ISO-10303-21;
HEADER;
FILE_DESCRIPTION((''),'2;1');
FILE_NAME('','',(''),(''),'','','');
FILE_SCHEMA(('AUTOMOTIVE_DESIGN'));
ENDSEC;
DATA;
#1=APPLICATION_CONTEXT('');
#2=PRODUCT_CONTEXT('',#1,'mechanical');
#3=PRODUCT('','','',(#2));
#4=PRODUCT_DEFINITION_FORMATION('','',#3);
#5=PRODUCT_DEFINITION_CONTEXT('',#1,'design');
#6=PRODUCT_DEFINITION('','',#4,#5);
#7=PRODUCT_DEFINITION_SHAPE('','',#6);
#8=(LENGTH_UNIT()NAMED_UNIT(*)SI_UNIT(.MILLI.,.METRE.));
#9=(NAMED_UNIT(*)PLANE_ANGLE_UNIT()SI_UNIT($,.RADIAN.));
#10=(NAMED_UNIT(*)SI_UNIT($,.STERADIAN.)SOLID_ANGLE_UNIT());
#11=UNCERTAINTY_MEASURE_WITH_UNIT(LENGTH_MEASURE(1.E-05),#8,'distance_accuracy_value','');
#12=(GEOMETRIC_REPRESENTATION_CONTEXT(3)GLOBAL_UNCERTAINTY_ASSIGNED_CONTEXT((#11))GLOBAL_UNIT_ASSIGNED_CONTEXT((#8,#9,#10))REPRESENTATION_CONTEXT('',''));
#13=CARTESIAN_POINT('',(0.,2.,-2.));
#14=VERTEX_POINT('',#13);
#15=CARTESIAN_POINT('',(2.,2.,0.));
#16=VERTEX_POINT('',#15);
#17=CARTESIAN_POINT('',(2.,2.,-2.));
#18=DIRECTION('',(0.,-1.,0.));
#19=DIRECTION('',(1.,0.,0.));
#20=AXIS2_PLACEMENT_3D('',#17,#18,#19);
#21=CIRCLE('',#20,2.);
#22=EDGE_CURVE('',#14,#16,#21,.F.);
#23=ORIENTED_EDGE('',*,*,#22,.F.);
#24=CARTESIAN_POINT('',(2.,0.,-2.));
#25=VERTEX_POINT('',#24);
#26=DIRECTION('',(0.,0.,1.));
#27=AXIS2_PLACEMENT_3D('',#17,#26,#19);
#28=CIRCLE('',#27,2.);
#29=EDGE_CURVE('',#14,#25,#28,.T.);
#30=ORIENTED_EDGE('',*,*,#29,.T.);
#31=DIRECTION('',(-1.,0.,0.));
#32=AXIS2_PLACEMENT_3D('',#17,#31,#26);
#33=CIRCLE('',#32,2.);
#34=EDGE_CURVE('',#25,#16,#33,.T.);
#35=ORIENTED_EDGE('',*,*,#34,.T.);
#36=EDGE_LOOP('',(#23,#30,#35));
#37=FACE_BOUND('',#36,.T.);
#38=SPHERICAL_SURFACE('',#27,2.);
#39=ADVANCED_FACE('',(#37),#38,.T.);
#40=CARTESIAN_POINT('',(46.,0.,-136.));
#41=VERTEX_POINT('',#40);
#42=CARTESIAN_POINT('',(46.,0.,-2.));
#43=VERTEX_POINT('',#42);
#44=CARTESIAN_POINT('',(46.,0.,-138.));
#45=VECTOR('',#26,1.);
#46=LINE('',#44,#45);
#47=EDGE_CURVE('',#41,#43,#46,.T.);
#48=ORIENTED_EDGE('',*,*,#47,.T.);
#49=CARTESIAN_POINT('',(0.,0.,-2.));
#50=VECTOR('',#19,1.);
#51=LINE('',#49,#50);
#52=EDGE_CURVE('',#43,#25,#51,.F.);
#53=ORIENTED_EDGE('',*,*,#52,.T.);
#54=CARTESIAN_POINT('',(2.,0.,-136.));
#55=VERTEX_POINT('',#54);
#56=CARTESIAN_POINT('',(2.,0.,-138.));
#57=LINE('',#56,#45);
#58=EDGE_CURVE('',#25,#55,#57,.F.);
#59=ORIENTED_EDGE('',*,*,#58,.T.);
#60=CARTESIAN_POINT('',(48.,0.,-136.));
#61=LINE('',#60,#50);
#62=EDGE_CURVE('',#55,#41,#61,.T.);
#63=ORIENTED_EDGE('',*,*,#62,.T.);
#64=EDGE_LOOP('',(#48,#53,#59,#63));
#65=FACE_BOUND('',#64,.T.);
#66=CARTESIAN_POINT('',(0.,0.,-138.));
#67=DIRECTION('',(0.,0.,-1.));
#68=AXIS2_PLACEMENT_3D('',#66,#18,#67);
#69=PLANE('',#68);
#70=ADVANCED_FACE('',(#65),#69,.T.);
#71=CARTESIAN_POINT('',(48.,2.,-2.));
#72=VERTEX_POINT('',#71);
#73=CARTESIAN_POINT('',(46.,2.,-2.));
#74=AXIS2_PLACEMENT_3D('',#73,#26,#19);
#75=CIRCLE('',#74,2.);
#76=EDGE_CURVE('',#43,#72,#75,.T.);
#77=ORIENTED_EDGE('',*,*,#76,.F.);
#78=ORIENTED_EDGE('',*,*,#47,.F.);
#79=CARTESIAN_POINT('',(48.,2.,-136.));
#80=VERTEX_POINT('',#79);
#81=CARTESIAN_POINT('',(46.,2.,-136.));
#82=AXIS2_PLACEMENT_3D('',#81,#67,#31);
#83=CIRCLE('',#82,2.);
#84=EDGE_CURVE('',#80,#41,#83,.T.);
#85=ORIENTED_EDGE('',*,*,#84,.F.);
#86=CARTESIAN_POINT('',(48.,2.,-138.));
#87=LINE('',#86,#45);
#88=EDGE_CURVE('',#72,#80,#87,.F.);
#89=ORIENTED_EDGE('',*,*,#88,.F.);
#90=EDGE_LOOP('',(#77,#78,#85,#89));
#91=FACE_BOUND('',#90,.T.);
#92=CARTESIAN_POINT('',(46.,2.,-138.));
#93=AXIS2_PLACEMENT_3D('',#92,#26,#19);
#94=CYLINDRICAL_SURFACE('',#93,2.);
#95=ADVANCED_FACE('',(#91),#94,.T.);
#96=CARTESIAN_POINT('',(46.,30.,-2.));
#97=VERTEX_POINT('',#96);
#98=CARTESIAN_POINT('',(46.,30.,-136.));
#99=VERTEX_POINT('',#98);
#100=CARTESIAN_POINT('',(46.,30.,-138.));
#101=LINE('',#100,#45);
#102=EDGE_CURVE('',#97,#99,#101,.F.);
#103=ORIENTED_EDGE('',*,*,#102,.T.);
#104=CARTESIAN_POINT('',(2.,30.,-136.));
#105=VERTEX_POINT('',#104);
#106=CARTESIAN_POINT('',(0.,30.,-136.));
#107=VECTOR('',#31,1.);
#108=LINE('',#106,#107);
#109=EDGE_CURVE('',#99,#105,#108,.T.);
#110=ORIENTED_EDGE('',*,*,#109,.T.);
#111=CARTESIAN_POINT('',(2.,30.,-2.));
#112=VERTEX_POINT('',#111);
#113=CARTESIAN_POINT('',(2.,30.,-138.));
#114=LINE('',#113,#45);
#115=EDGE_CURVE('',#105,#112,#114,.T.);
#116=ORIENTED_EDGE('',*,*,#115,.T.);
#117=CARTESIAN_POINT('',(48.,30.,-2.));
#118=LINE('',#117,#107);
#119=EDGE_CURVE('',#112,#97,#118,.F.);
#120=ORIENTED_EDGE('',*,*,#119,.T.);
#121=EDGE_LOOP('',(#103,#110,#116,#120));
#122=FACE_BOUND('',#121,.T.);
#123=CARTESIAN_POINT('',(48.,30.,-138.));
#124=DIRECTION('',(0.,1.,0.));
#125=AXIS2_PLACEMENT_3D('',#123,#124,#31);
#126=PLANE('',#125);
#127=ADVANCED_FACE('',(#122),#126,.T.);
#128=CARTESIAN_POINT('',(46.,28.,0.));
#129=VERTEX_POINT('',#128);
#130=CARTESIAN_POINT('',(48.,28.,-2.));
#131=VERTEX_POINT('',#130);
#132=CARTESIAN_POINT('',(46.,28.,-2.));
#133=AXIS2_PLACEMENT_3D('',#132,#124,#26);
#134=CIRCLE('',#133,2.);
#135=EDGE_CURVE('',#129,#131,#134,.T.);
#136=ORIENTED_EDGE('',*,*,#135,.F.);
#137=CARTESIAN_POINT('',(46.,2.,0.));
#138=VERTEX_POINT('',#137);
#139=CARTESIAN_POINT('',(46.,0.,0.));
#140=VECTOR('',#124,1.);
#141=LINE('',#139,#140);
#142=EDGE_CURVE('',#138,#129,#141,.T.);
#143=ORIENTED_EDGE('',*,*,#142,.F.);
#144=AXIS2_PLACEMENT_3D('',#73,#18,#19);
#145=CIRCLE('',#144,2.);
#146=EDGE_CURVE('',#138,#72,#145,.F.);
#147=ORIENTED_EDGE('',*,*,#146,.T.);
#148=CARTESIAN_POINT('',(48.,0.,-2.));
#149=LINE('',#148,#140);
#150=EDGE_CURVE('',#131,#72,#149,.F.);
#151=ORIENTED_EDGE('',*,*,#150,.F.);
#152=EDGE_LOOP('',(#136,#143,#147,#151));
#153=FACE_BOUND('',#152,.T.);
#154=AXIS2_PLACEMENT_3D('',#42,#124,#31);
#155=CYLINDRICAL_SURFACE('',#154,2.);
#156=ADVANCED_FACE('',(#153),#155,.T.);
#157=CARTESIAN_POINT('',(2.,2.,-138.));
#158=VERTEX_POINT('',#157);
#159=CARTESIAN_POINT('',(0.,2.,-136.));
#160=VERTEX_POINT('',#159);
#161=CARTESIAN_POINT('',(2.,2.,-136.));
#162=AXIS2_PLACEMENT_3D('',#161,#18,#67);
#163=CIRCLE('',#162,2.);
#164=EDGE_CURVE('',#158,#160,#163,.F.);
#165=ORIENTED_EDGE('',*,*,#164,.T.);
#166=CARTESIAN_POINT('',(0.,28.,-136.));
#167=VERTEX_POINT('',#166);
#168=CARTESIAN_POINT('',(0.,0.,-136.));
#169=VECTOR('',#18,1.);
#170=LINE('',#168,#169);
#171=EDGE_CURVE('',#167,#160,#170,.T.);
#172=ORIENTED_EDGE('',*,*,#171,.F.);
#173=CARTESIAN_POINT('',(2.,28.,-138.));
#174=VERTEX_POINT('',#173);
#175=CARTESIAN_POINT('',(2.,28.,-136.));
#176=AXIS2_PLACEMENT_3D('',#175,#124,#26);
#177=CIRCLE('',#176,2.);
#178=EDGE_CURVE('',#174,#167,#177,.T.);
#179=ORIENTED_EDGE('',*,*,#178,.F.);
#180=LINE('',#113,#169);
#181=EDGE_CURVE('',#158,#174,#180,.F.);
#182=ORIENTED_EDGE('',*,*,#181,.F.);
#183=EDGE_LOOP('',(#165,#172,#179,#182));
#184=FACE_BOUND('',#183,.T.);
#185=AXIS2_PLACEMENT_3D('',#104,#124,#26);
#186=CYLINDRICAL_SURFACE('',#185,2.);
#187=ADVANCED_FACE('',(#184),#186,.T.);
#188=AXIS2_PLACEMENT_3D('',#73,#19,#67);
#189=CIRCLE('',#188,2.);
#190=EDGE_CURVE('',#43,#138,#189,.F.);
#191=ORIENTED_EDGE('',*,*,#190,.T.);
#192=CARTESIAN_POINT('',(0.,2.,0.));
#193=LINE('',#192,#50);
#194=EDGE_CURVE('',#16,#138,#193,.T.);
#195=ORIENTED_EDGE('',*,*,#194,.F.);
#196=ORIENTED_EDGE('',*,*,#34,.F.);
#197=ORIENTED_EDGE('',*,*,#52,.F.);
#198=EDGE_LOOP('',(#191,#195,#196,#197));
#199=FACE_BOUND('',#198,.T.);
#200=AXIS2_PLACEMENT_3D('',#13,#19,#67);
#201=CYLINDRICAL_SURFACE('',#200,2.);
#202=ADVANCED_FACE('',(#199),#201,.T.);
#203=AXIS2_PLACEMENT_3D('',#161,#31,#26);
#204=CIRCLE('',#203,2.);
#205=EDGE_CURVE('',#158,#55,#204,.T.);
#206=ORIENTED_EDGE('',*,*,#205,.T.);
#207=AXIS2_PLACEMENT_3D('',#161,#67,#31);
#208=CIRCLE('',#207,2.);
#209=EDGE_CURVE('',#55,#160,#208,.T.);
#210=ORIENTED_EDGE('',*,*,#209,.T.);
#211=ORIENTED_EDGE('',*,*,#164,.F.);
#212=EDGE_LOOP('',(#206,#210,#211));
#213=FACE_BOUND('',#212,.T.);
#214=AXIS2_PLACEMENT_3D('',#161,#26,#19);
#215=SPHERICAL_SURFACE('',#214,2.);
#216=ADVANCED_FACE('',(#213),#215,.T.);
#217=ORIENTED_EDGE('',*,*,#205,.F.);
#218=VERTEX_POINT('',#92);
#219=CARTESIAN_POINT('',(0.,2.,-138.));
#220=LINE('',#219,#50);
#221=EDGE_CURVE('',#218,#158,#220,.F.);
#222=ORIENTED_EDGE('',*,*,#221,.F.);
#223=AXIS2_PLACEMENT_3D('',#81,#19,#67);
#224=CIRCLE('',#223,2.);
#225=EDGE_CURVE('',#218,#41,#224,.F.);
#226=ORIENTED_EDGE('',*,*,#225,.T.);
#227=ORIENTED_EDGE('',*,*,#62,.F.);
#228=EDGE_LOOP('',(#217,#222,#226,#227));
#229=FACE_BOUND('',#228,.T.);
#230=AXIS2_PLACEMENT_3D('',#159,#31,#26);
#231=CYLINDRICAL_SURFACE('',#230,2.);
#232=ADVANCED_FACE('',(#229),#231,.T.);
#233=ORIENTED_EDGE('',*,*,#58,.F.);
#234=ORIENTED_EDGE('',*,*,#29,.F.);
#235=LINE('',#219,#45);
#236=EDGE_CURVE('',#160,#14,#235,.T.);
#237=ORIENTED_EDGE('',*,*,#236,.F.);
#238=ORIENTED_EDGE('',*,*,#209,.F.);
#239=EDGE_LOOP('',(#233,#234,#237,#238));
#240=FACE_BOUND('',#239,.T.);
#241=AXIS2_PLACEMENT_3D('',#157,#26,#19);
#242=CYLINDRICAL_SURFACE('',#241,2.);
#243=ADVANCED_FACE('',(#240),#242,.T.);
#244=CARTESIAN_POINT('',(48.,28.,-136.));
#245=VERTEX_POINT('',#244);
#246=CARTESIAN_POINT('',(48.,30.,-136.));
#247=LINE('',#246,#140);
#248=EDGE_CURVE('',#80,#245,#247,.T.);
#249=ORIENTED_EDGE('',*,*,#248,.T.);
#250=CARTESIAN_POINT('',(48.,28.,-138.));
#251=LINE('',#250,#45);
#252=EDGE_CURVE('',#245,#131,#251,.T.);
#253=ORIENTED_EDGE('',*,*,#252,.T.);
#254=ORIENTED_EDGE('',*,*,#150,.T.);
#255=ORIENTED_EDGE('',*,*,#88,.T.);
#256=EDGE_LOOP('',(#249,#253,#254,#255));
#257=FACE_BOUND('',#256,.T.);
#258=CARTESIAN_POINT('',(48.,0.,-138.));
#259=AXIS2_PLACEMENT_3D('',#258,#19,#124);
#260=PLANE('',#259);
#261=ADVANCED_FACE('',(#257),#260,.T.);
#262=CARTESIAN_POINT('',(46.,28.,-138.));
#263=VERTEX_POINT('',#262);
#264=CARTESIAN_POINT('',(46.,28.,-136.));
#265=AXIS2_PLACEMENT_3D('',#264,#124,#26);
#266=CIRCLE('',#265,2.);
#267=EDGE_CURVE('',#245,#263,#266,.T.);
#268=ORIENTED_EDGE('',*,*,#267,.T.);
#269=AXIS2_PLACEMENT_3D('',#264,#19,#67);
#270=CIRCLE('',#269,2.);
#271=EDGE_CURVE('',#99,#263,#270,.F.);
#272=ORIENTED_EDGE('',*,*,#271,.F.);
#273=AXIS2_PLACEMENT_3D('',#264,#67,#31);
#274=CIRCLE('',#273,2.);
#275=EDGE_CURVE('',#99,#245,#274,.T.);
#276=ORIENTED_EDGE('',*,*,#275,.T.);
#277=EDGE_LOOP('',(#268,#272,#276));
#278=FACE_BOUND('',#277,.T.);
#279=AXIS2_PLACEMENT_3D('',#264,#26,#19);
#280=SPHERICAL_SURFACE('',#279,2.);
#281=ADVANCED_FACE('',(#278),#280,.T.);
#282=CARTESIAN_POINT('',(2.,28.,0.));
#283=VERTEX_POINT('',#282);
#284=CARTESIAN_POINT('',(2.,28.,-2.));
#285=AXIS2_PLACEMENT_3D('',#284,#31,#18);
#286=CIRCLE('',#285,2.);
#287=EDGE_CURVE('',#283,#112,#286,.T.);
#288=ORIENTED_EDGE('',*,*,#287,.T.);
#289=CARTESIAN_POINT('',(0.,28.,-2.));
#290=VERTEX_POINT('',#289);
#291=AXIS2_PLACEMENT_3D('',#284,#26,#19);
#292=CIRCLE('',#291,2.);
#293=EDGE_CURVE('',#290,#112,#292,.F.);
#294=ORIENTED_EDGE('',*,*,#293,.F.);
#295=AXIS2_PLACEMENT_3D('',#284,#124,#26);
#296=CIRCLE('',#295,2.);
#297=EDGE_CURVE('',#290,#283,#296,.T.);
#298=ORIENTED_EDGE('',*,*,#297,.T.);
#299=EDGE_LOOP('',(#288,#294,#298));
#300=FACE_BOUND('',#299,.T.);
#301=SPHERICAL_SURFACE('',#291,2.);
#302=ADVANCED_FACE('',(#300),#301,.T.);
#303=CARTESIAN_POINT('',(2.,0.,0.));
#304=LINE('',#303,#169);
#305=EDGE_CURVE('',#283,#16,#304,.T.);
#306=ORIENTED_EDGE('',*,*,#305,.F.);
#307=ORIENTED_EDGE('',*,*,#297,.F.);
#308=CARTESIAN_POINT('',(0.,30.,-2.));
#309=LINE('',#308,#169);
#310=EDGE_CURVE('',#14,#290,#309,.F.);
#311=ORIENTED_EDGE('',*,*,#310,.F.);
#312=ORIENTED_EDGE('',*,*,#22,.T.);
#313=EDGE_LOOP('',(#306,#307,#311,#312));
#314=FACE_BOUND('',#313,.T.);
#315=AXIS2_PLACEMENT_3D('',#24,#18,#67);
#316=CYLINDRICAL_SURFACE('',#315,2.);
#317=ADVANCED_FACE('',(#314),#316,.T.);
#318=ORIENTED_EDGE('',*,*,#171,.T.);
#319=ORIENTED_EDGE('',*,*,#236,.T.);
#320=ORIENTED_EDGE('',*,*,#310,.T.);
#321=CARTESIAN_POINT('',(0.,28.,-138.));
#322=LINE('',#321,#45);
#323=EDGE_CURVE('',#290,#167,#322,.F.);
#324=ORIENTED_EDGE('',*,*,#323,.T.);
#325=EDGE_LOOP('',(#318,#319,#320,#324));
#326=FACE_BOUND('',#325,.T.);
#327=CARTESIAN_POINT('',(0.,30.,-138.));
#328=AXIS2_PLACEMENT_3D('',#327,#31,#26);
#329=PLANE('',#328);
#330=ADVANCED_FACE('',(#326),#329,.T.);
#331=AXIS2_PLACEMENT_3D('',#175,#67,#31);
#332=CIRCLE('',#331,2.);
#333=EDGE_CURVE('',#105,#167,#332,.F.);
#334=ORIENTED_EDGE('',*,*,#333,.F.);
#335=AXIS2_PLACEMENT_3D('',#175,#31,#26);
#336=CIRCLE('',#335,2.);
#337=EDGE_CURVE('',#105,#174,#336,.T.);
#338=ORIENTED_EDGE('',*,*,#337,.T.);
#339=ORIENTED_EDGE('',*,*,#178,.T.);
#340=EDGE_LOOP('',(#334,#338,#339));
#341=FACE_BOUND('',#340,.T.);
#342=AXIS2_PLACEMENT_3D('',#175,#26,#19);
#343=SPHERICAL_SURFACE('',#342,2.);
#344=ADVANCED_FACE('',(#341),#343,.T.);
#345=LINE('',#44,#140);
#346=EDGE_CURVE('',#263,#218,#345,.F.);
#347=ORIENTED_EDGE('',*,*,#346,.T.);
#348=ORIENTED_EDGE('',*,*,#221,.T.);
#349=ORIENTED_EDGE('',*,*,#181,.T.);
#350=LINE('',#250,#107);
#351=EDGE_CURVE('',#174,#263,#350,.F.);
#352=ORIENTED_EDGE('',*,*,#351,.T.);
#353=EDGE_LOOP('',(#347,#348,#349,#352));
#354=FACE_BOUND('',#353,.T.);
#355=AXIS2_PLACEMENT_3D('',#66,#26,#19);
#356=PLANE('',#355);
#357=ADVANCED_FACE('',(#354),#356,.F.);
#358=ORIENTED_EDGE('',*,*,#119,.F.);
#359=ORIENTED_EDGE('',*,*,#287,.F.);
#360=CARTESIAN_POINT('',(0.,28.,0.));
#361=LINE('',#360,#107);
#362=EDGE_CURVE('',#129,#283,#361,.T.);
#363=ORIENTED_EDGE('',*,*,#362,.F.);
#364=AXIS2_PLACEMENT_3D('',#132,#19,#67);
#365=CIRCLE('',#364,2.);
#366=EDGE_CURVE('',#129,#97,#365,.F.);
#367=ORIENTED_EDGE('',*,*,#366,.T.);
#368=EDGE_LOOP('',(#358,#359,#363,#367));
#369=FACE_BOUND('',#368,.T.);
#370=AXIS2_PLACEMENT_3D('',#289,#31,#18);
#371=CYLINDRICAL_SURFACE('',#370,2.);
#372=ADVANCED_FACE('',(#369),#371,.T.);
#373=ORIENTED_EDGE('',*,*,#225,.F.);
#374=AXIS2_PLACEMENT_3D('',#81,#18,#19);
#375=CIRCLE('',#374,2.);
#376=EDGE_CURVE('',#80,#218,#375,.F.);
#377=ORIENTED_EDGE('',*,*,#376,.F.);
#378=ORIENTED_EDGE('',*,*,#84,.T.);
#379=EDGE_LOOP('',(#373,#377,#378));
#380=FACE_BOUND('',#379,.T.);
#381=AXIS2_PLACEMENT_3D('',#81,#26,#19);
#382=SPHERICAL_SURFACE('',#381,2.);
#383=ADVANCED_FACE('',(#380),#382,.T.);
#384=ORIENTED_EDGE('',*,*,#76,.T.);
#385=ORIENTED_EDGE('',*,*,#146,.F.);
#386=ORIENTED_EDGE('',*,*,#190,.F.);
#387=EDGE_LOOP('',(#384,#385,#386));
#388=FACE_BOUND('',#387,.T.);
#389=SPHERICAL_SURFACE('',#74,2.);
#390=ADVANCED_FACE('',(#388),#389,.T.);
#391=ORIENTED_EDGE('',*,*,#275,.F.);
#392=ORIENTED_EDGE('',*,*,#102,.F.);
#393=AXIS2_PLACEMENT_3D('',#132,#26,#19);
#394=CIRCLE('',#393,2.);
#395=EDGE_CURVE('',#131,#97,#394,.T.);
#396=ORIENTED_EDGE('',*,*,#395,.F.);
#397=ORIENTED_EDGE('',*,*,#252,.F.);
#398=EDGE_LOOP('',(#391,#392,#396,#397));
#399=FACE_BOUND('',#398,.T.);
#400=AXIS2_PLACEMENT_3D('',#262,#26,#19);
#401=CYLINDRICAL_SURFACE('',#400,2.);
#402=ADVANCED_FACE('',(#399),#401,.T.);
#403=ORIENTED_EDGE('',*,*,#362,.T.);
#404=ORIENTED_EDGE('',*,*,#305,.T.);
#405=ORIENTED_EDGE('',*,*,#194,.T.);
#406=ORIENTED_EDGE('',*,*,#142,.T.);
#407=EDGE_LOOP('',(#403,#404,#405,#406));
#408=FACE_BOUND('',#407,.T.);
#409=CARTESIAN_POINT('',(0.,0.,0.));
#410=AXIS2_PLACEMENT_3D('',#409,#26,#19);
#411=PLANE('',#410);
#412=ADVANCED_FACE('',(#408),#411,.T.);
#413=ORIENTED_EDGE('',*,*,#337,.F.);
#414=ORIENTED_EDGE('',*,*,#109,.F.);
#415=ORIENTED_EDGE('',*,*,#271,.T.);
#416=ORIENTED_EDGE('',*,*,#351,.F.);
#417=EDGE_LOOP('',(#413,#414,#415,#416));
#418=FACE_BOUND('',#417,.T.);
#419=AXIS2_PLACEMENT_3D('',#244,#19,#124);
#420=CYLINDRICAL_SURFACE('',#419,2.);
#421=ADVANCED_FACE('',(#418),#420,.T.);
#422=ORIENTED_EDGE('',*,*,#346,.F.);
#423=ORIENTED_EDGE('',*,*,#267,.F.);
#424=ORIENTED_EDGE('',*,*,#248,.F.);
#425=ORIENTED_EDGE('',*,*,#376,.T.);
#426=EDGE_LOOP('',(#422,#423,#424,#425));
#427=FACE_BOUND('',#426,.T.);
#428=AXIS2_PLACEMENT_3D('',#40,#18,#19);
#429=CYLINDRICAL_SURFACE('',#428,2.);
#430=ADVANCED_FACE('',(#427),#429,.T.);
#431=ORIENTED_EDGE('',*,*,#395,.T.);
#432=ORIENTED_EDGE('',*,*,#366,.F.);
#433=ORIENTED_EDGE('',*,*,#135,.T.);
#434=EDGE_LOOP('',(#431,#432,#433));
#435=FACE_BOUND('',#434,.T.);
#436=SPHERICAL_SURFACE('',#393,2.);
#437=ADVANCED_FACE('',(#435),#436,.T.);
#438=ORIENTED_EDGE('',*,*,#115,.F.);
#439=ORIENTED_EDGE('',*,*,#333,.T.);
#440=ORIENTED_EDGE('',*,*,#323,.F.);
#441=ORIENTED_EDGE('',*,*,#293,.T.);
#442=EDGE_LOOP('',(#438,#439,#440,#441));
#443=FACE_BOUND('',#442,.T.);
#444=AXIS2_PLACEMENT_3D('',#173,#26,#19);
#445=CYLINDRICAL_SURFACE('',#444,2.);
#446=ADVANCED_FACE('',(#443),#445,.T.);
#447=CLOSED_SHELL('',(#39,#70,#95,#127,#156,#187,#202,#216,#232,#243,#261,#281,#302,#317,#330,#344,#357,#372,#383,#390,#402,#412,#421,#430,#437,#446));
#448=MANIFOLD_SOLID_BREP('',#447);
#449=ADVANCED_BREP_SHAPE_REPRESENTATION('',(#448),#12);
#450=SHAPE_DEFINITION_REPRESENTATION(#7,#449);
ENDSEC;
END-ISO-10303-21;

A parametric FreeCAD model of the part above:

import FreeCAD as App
import Part
import Sketcher
Q = App.Units.Quantity

doc = App.newDocument("Part")
body = doc.addObject("PartDesign::Body", "Body")

sketch1 = body.newObject("Sketcher::SketchObject", "Sketch")
sketch1.AttachmentSupport = (doc.getObject("XY_Plane"), [""])
sketch1.MapMode = "FlatFace"
sketch1.addGeometry(Part.LineSegment(App.Vector(0, 30, 0), App.Vector(0, 0, 0)), False)
sketch1.addGeometry(Part.LineSegment(App.Vector(0, 0, 0), App.Vector(48, 0, 0)), False)
sketch1.addGeometry(Part.LineSegment(App.Vector(48, 0, 0), App.Vector(48, 30, 0)), False)
sketch1.addGeometry(Part.LineSegment(App.Vector(48, 30, 0), App.Vector(0, 30, 0)), False)
sketch1.addConstraint(Sketcher.Constraint("Coincident", 0, 2, 1, 1))
sketch1.addConstraint(Sketcher.Constraint("Coincident", 1, 2, 2, 1))
sketch1.addConstraint(Sketcher.Constraint("Coincident", 2, 2, 3, 1))
sketch1.addConstraint(Sketcher.Constraint("Coincident", 3, 2, 0, 1))
sketch1.addConstraint(Sketcher.Constraint("Vertical", 0))
sketch1.addConstraint(Sketcher.Constraint("Horizontal", 1))
sketch1.addConstraint(Sketcher.Constraint("Vertical", 2))
sketch1.addConstraint(Sketcher.Constraint("Horizontal", 3))
sketch1.addConstraint(Sketcher.Constraint("Coincident", 0, 2, -1, 1))
sketch1.addConstraint(Sketcher.Constraint("DistanceX", 1, 1, 1, 2, Q("48 mm")))
sketch1.addConstraint(Sketcher.Constraint("DistanceY", 0, 2, 0, 1, Q("30 mm")))
pad1 = body.newObject("PartDesign::Pad", "Pad")
pad1.Profile = sketch1
pad1.Length = 138
pad1.Reversed = True
doc.recompute()

fillet = body.newObject("PartDesign::Fillet", "Fillet")
fillet.Base = (pad1, ["Edge1"])
fillet.UseAllEdges = True
fillet.Radius = 2

doc.recompute()
